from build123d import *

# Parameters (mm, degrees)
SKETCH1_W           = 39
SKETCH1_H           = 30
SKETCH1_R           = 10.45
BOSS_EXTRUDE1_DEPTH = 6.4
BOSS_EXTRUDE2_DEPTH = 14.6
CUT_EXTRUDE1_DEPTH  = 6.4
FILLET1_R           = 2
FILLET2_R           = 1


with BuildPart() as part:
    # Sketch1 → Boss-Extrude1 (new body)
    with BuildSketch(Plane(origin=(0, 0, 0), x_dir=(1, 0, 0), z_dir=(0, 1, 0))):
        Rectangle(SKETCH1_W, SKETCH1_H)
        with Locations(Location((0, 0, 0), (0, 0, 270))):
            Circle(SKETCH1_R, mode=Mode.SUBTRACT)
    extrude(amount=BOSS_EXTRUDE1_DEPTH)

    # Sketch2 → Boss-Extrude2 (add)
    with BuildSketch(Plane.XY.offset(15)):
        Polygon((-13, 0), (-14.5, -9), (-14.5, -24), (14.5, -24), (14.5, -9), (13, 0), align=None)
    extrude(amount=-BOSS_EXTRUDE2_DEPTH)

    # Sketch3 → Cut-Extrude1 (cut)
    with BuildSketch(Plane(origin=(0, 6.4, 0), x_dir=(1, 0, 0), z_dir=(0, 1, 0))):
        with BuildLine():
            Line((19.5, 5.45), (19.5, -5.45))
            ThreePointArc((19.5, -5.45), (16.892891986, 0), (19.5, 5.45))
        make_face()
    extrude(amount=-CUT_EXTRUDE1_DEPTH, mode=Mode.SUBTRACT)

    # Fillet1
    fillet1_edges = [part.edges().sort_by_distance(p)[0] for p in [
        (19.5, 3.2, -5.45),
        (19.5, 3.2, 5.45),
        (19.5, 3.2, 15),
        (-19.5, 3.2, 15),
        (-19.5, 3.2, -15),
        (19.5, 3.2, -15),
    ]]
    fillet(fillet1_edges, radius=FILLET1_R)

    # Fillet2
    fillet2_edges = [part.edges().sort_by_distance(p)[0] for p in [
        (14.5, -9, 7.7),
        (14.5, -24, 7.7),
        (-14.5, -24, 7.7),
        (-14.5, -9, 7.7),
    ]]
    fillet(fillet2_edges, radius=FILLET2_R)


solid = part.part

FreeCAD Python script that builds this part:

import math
import FreeCAD as App
import Part
import Sketcher
from FreeCAD import Vector
Q = App.Units.Quantity


def edges_at(feature, points):
    """Names of the edges that pass closest to the given points."""
    edges = feature.Shape.Edges
    near = lambda p: min(range(len(edges)), key=lambda i: edges[i].distToShape(Part.Vertex(*p))[0])
    return sorted({f"Edge{near(p) + 1}" for p in points})


def add_polygon(sketch, points):
    """Adds a closed chain of lines whose ends are joined by coincident constraints."""
    first, n = sketch.GeometryCount, len(points)
    for a, b in zip(points, points[1:] + points[:1]):
        sketch.addGeometry(Part.LineSegment(App.Vector(*a, 0), App.Vector(*b, 0)), False)
    for i in range(n):
        sketch.addConstraint(Sketcher.Constraint("Coincident", first + i, 2, first + (i + 1) % n, 1))

doc = App.newDocument("Part")
params = doc.addObject("Spreadsheet::Sheet", "Params")
for row, (alias, value) in enumerate([
    ("sketch1_diameter", "20.9 mm"),
    ("sketch1_width", "39 mm"),
    ("sketch1_height", "30 mm"),
    ("pad1_length", "6.4 mm"),
    ("sketch2_width", "29 mm"),
    ("sketch2_width2", "26 mm"),
    ("sketch2_height", "15 mm"),
    ("pad2_length", "14.6 mm"),
    ("sketch3_radius", "7 mm"),
    ("sketch3_height", "10.9 mm"),
    ("pocket1_length", "6.4 mm"),
    ("fillet_radius", "2 mm"),
    ("fillet2_radius", "1 mm"),
], start=1):
    params.set(f"A{row}", alias)
    params.set(f"B{row}", "=" + value)
    params.setAlias(f"B{row}", alias)

body = doc.addObject("PartDesign::Body", "Body")

# Sketch on XZ plane
sketch1 = body.newObject("Sketcher::SketchObject", "Sketch")
sketch1.AttachmentSupport = (doc.getObject("XZ_Plane"), [""])
sketch1.MapMode = "FlatFace"
add_polygon(sketch1, [(-20, -15), (-20, 15), (20, 15), (20, -15)])  # lines 0-3
sketch1.addGeometry(Part.Circle(Vector(0, 0, 0), Vector(0, 0, 1), 10), False)  # 4
sketch1.addConstraint([
    Sketcher.Constraint("Vertical", 0),
    Sketcher.Constraint("Horizontal", 1),
    Sketcher.Constraint("Vertical", 2),
    Sketcher.Constraint("Horizontal", 3),
    Sketcher.Constraint("Coincident", 4, 3, -1, 1),
    Sketcher.Constraint("Symmetric", 0, 2, 2, 2, -1, 1),
    Sketcher.Constraint("Diameter", 4, Q("20.9 mm")),
    Sketcher.Constraint("DistanceX", 1, 1, 1, 2, Q("39 mm")),
    Sketcher.Constraint("DistanceY", 0, 1, 0, 2, Q("30 mm")),
])
sketch1.setExpression("Constraints[10]", "Params.sketch1_diameter")
sketch1.setExpression("Constraints[11]", "Params.sketch1_width")
sketch1.setExpression("Constraints[12]", "Params.sketch1_height")
pad1 = body.newObject("PartDesign::Pad", "Pad")
pad1.Profile = sketch1
pad1.setExpression("Length", "Params.pad1_length")
pad1.Reversed = True

# Sketch on XY plane
sketch2 = body.newObject("Sketcher::SketchObject", "Sketch001")
sketch2.AttachmentSupport = (doc.getObject("XY_Plane"), [""])
sketch2.MapMode = "FlatFace"
sketch2.AttachmentOffset = App.Placement(Vector(0, 0, 15), App.Rotation())
add_polygon(sketch2, [(-13, 0), (-14, -9), (-14, -24), (14, -24), (14, -9), (13, 0)])  # lines 0-5
sketch2.addConstraint([
    Sketcher.Constraint("Vertical", 1),
    Sketcher.Constraint("Horizontal", 2),
    Sketcher.Constraint("Vertical", 3),
    Sketcher.Constraint("Horizontal", 5),
    Sketcher.Constraint("Symmetric", 4, 2, 5, 2, -1, 1),
    Sketcher.Constraint("Symmetric", 0, 2, 3, 2, -2),
    Sketcher.Constraint("DistanceX", 2, 1, 2, 2, Q("29 mm")),
    Sketcher.Constraint("DistanceX", 5, 2, 5, 1, Q("26 mm")),
    Sketcher.Constraint("DistanceY", 1, 2, 1, 1, Q("15 mm")),
    Sketcher.Constraint("DistanceY", 0, 2, -1, 1, Q("9 mm")),
])
sketch2.setExpression("Constraints[12]", "Params.sketch2_width")
sketch2.setExpression("Constraints[13]", "Params.sketch2_width2")
sketch2.setExpression("Constraints[14]", "Params.sketch2_height")
pad2 = body.newObject("PartDesign::Pad", "Pad001")
pad2.Profile = sketch2
pad2.setExpression("Length", "Params.pad2_length")
pad2.Reversed = True

# Sketch on XZ plane
sketch3 = body.newObject("Sketcher::SketchObject", "Sketch002")
sketch3.AttachmentSupport = (doc.getObject("XZ_Plane"), [""])
sketch3.MapMode = "FlatFace"
sketch3.AttachmentOffset = App.Placement(Vector(0, 0, -6.4), App.Rotation())
sketch3.addGeometry([
    Part.LineSegment(Vector(20, 5, 0), Vector(20, -5, 0)),
    Part.ArcOfCircle(Part.Circle(Vector(24, 0, 0), Vector(0, 0, 1), 7), math.radians(129), math.radians(231)),
], False)
sketch3.addConstraint([
    Sketcher.Constraint("Coincident", 0, 1, 1, 1),
    Sketcher.Constraint("Coincident", 1, 2, 0, 2),
    Sketcher.Constraint("Vertical", 0),
    Sketcher.Constraint("PointOnObject", 1, 3, -1),
    Sketcher.Constraint("Radius", 1, Q("7 mm")),
    Sketcher.Constraint("DistanceY", 0, 2, 0, 1, Q("10.9 mm")),
    Sketcher.Constraint("DistanceX", -1, 1, 0, 1, Q("19.5 mm")),
])
sketch3.setExpression("Constraints[4]", "Params.sketch3_radius")
sketch3.setExpression("Constraints[5]", "Params.sketch3_height")
pocket1 = body.newObject("PartDesign::Pocket", "Pocket")
pocket1.Profile = sketch3
pocket1.setExpression("Length", "Params.pocket1_length")
pocket1.Reversed = True
doc.recompute()

fillet = body.newObject("PartDesign::Fillet", "Fillet")
fillet.Base = (pocket1, edges_at(pocket1, [
    (19.5, 3.2, -5.45),
    (19.5, 3.2, 5.45),
    (19.5, 3.2, 15),
    (-19.5, 3.2, 15),
    (-19.5, 3.2, -15),
    (19.5, 3.2, -15),
]))
fillet.setExpression("Radius", "Params.fillet_radius")
doc.recompute()

fillet2 = body.newObject("PartDesign::Fillet", "Fillet001")
fillet2.Base = (fillet, edges_at(fillet, [
    (14.5, -9, 7.7),
    (14.5, -24, 7.7),
    (-14.5, -24, 7.7),
    (-14.5, -9, 7.7),
]))
fillet2.setExpression("Radius", "Params.fillet2_radius")

doc.recompute()
